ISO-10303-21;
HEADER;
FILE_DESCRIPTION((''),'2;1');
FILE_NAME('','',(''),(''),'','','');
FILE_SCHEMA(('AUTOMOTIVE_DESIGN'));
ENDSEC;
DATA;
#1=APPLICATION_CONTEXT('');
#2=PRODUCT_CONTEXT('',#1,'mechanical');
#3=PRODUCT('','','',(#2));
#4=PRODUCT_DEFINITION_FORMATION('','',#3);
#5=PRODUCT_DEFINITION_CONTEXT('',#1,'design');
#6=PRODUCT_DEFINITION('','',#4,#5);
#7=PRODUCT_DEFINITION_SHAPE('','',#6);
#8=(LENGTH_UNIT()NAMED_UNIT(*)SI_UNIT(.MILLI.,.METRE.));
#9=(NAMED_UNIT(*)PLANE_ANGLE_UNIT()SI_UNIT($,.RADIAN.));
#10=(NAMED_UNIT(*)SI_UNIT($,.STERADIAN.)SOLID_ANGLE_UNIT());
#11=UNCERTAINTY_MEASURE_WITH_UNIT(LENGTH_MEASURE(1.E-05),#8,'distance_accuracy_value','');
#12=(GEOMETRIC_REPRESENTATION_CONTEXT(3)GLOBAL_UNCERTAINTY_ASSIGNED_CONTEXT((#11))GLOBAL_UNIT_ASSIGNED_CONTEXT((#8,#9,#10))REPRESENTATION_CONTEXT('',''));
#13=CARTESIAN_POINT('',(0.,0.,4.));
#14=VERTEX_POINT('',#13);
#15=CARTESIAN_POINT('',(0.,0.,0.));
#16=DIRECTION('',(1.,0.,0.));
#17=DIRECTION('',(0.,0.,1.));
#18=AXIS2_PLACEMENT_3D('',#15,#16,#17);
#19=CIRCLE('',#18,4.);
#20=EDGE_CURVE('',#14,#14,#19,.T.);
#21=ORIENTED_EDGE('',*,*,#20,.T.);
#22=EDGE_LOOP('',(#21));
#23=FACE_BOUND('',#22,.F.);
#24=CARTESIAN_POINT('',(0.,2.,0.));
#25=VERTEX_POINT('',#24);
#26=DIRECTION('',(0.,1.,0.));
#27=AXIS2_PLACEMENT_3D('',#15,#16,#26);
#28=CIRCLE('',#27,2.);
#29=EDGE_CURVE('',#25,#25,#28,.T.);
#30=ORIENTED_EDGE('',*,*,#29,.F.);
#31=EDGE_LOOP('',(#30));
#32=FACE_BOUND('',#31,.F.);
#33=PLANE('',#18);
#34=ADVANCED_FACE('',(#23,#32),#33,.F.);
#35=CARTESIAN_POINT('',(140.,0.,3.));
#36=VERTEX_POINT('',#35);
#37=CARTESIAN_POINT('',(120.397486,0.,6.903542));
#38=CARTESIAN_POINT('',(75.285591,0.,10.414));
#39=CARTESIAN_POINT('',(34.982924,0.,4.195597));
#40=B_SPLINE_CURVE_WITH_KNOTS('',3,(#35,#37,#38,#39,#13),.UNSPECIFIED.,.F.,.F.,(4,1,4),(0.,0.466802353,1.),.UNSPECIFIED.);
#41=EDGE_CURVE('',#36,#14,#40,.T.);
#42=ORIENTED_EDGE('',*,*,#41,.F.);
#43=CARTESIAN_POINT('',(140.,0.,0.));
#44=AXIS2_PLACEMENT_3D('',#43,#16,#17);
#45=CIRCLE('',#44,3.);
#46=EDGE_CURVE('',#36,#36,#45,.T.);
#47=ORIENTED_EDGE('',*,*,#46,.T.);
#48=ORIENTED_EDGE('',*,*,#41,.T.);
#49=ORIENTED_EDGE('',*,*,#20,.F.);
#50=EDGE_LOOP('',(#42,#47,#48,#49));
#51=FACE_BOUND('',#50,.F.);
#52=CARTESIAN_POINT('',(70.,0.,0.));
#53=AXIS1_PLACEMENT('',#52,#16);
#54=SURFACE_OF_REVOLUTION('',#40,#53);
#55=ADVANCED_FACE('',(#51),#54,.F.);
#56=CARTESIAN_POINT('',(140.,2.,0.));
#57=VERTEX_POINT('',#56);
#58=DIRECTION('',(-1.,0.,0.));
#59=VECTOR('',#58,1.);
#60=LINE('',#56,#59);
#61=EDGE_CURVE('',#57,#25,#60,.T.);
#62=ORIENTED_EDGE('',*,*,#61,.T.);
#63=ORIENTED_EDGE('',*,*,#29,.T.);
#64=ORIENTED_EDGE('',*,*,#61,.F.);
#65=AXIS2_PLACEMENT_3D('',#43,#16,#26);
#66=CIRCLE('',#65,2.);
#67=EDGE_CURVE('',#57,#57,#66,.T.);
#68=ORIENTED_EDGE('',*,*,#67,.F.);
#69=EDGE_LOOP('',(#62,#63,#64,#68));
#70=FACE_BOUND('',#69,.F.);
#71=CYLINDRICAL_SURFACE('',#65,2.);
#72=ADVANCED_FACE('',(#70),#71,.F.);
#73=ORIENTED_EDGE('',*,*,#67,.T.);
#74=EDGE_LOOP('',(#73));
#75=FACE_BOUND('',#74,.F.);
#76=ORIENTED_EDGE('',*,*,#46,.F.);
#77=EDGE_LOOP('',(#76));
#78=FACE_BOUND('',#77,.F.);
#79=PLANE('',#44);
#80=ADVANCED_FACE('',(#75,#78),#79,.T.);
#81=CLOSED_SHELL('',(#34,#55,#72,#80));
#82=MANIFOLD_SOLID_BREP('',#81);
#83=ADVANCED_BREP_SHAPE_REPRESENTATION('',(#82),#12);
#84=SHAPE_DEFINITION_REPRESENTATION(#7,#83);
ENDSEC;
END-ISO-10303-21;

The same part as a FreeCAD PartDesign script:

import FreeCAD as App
import Part
import Sketcher
from FreeCAD import Vector

doc = App.newDocument("Part")
params = doc.addObject("Spreadsheet::Sheet", "Params")
for row, (alias, value) in enumerate([
    ("revolution_angle", "360 deg"),
    ("sketch2_diameter", "4 mm"),
], start=1):
    params.set(f"A{row}", alias)
    params.set(f"B{row}", "=" + value)
    params.setAlias(f"B{row}", alias)

body = doc.addObject("PartDesign::Body", "Body")

# Sketch on XZ plane
sketch1 = doc.addObject("Sketcher::SketchObject", "Sketch")
body.addObject(sketch1)
sketch1.AttachmentSupport = (doc.XZ_Plane, [""])
sketch1.MapMode = "FlatFace"
sketch1.addGeometry(Part.LineSegment(Vector(0, 4, 0), Vector(0, 0, 0)), False)
sketch1.addGeometry(Part.LineSegment(Vector(0, 0, 0), Vector(140, 0, 0)), False)
sketch1.addGeometry(Part.LineSegment(Vector(140, 0, 0), Vector(140, 3, 0)), False)
sketch1.addGeometry(Part.BSplineCurve([Vector(140, 3, 0), Vector(120.397486, 6.903542, 0), Vector(75.285591, 10.414, 0), Vector(34.982924, 4.195597, 0), Vector(0, 4, 0)], [4, 1, 4], [0, 0.466802353, 1], False, 3, [1, 1, 1, 1, 1], False), False)
sketch1.addConstraint(Sketcher.Constraint("Block", 3))
sketch1.addConstraint(Sketcher.Constraint("Coincident", 0, 2, 1, 1))
sketch1.addConstraint(Sketcher.Constraint("Coincident", 1, 2, 2, 1))
sketch1.addConstraint(Sketcher.Constraint("Coincident", 2, 2, 3, 1))
sketch1.addConstraint(Sketcher.Constraint("Coincident", 3, 2, 0, 1))
sketch1.addConstraint(Sketcher.Constraint("Vertical", 0))
sketch1.addConstraint(Sketcher.Constraint("Horizontal", 1))
sketch1.addConstraint(Sketcher.Constraint("Vertical", 2))
sketch1.addConstraint(Sketcher.Constraint("PointOnObject", 1, 2, -1))
revolution = doc.addObject("PartDesign::Revolution", "Revolution")
body.addObject(revolution)
revolution.Profile = sketch1
revolution.ReferenceAxis = (sketch1, ["H_Axis"])
revolution.setExpression("Angle", "Params.revolution_angle")

# Sketch on YZ plane
sketch2 = doc.addObject("Sketcher::SketchObject", "Sketch001")
body.addObject(sketch2)
sketch2.AttachmentSupport = (doc.YZ_Plane, [""])
sketch2.MapMode = "FlatFace"
sketch2.AttachmentOffset = App.Placement(Vector(0, 0, 140), App.Rotation())
sketch2.addGeometry(Part.Circle(Vector(0, 0, 0), Vector(0, 0, 1), 2), False)
sketch2.addConstraint(Sketcher.Constraint("Coincident", 0, 3, -1, 1))
sketch2.addConstraint(Sketcher.Constraint("Diameter", 0, 4.0))
sketch2.setExpression("Constraints[1]", "Params.sketch2_diameter")
pocket1 = doc.addObject("PartDesign::Pocket", "Pocket")
body.addObject(pocket1)
pocket1.Profile = sketch2
pocket1.Type = "ThroughAll"

doc.recompute()
